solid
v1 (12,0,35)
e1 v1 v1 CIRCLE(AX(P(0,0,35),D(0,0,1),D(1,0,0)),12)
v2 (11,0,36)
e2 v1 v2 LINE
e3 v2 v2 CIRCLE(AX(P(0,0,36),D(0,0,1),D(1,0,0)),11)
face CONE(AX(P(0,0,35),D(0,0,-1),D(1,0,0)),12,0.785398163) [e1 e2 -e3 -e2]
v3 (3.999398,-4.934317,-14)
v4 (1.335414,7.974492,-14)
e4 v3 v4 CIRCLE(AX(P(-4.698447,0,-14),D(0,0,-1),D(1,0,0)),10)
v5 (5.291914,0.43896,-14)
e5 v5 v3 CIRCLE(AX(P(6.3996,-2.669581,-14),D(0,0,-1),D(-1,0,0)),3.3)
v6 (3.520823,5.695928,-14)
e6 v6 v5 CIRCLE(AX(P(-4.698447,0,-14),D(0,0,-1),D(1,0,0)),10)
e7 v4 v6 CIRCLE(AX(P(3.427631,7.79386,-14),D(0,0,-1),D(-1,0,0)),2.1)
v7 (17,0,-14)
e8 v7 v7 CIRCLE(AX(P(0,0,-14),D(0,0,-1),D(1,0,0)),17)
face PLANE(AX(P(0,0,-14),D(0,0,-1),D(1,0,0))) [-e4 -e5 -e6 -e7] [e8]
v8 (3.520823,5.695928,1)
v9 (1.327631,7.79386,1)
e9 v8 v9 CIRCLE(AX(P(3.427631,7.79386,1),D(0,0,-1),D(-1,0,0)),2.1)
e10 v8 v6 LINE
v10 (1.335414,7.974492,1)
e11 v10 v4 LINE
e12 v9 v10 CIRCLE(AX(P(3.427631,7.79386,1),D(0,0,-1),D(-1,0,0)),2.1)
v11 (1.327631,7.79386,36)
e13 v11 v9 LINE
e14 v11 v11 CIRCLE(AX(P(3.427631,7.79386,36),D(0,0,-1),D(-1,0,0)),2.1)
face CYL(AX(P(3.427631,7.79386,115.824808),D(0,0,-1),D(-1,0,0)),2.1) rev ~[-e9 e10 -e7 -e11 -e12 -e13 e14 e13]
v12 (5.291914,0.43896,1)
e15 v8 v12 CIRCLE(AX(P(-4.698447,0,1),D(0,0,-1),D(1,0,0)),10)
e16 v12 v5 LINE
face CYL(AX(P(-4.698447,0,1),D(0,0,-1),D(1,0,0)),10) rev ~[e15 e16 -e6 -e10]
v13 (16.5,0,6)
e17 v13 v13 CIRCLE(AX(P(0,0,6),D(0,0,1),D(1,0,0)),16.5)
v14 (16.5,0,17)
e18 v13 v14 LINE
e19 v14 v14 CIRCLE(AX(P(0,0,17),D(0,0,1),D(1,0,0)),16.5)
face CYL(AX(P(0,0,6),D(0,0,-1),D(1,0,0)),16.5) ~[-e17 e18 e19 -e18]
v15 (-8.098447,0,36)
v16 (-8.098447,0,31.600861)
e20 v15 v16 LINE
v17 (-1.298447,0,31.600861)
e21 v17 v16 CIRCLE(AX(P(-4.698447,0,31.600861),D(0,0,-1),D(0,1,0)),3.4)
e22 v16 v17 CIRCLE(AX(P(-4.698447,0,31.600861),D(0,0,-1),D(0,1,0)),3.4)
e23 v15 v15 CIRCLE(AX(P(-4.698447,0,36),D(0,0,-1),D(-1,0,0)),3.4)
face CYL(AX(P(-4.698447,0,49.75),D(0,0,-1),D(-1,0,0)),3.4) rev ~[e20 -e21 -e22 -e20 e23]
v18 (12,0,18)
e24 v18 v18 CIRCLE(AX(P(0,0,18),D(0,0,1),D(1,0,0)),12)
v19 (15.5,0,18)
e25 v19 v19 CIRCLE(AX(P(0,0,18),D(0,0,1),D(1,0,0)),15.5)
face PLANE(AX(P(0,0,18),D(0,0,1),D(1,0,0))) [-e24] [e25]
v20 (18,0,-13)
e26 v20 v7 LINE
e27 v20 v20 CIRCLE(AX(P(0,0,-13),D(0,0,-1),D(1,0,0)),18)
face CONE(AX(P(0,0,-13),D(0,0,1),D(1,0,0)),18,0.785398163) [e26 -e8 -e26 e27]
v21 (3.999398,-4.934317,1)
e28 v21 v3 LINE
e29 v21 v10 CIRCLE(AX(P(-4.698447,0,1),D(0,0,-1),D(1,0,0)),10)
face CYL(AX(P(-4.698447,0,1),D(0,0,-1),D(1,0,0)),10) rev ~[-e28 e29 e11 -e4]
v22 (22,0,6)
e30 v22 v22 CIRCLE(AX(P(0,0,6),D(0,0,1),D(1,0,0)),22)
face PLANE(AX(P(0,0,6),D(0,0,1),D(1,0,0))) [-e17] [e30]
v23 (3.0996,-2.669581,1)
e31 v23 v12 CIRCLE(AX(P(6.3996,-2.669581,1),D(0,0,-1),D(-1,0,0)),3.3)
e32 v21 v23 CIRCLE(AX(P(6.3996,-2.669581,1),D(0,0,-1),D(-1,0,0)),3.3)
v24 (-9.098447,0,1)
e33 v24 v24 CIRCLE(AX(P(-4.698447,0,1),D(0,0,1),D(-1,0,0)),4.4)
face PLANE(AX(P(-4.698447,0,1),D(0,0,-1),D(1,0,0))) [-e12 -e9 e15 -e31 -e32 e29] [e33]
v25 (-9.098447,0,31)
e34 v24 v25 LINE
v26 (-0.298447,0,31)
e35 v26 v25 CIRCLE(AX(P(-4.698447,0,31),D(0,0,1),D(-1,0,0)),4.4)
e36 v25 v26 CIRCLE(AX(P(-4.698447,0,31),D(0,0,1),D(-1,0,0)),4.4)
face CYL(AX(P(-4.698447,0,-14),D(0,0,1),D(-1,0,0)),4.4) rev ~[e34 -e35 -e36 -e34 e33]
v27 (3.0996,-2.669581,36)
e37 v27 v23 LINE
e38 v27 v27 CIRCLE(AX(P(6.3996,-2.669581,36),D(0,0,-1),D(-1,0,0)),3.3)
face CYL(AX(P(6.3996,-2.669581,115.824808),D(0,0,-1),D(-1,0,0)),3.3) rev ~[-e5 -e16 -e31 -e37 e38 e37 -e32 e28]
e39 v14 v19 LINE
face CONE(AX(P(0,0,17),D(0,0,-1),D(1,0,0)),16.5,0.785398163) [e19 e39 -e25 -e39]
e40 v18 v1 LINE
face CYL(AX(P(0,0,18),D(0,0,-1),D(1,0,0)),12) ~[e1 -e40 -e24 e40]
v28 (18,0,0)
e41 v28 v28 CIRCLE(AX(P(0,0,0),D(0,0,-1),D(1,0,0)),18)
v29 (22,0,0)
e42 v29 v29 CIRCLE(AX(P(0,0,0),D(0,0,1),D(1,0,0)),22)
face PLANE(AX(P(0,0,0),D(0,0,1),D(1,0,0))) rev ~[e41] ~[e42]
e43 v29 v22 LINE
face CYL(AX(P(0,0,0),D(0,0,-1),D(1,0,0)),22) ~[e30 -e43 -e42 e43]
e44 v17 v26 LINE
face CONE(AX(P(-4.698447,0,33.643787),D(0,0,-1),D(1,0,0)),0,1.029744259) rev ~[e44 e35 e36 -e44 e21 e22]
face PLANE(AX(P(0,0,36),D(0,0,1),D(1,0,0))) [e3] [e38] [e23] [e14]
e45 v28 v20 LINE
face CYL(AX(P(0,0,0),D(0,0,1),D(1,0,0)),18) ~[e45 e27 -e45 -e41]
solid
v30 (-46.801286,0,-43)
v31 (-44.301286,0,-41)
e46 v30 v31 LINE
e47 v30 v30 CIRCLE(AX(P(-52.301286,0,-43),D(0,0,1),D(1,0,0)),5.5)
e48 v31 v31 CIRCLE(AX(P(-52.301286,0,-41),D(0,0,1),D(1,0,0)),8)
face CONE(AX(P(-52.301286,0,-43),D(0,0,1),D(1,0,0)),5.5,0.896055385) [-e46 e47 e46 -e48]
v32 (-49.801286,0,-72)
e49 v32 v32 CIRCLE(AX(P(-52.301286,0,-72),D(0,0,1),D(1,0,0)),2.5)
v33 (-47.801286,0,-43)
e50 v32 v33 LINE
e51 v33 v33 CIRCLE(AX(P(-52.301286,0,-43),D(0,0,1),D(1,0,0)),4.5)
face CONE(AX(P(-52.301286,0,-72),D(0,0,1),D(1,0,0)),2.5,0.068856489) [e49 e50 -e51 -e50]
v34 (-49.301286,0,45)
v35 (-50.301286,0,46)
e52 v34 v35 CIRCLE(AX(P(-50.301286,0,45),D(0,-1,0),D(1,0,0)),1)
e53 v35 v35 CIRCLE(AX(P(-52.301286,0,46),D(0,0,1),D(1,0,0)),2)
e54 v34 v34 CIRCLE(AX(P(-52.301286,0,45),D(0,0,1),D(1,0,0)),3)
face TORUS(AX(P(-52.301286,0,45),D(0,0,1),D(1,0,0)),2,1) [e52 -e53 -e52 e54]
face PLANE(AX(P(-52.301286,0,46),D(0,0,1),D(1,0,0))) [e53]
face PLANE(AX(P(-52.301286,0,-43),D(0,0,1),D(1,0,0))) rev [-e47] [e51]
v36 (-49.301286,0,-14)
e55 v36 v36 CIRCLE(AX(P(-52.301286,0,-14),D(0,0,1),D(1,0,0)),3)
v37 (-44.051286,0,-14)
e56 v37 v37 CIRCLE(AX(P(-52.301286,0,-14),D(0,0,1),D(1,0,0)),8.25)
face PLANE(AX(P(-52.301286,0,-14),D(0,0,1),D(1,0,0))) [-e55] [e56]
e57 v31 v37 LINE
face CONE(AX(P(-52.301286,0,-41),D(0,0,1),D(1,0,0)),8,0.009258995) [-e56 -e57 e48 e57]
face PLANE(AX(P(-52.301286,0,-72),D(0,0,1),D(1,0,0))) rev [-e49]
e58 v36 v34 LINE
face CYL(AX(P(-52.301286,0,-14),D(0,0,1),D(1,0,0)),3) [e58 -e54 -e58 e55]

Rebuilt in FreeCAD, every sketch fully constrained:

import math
import FreeCAD as App
import Part
import Sketcher

V = App.Vector
Q = App.Units.Quantity


def edges_at(feature, points):
    """Names of the edges that pass closest to the given points."""
    edges = feature.Shape.Edges
    near = lambda p: min(range(len(edges)), key=lambda i: edges[i].distToShape(Part.Vertex(*p))[0])
    return sorted({f"Edge{near(p) + 1}" for p in points})

doc = App.newDocument("Part")
body = doc.addObject("PartDesign::Body", "Body")

# Sketch on XY plane
sketch1 = body.newObject("Sketcher::SketchObject", "Sketch")
sketch1.AttachmentSupport = (doc.getObject("XY_Plane"), [""])
sketch1.MapMode = "FlatFace"
sketch1.addGeometry(Part.Circle(V(0, 0, 0), V(0, 0, 1), 22), False)
sketch1.addConstraint(Sketcher.Constraint("Coincident", 0, 3, -1, 1))
sketch1.addConstraint(Sketcher.Constraint("Diameter", 0, Q("44 mm")))
pad1 = body.newObject("PartDesign::Pad", "Pad")
pad1.Profile = sketch1
pad1.Length = 6

# Sketch on XY plane
sketch2 = body.newObject("Sketcher::SketchObject", "Sketch001")
sketch2.AttachmentSupport = (doc.getObject("XY_Plane"), [""])
sketch2.MapMode = "FlatFace"
sketch2.AttachmentOffset = App.Placement(V(0, 0, 6), App.Rotation())
sketch2.addGeometry(Part.Circle(V(0, 0, 0), V(0, 0, 1), 16), False)
sketch2.addConstraint(Sketcher.Constraint("Coincident", 0, 3, -1, 1))
sketch2.addConstraint(Sketcher.Constraint("Diameter", 0, Q("33 mm")))
pad2 = body.newObject("PartDesign::Pad", "Pad001")
pad2.Profile = sketch2
pad2.Length = 12

# Sketch on XY plane
sketch3 = body.newObject("Sketcher::SketchObject", "Sketch002")
sketch3.AttachmentSupport = (doc.getObject("XY_Plane"), [""])
sketch3.MapMode = "FlatFace"
sketch3.AttachmentOffset = App.Placement(V(0, 0, 18), App.Rotation())
sketch3.addGeometry(Part.Circle(V(0, 0, 0), V(0, 0, 1), 12), False)
sketch3.addConstraint(Sketcher.Constraint("Coincident", 0, 3, -1, 1))
sketch3.addConstraint(Sketcher.Constraint("Diameter", 0, Q("24 mm")))
pad3 = body.newObject("PartDesign::Pad", "Pad002")
pad3.Profile = sketch3
pad3.Length = 18

# Sketch on XY plane
sketch4 = body.newObject("Sketcher::SketchObject", "Sketch003")
sketch4.AttachmentSupport = (doc.getObject("XY_Plane"), [""])
sketch4.MapMode = "FlatFace"
sketch4.addGeometry(Part.Circle(V(0, 0, 0), V(0, 0, 1), 18), False)
sketch4.addConstraint(Sketcher.Constraint("Coincident", 0, 3, -1, 1))
sketch4.addConstraint(Sketcher.Constraint("Diameter", 0, Q("36 mm")))
pad4 = body.newObject("PartDesign::Pad", "Pad003")
pad4.Profile = sketch4
pad4.Length = 14
pad4.Reversed = True
doc.recompute()

chamfer = body.newObject("PartDesign::Chamfer", "Chamfer")
chamfer.Base = (pad4, edges_at(pad4, [(-18, 0, -14), (-16.5, 0, 18)]))
chamfer.Size = 1
doc.recompute()

chamfer2 = body.newObject("PartDesign::Chamfer", "Chamfer001")
chamfer2.Base = (chamfer, edges_at(chamfer, [(-12, 0, 36)]))
chamfer2.Size = 1

# Sketch on XY plane
sketch5 = body.newObject("Sketcher::SketchObject", "Sketch004")
sketch5.AttachmentSupport = (doc.getObject("XY_Plane"), [""])
sketch5.MapMode = "FlatFace"
sketch5.AttachmentOffset = App.Placement(V(0, 0, 36), App.Rotation())
sketch5.addGeometry(Part.Circle(V(-4.7, 0, 0), V(0, 0, 1), 3.4), False)
sketch5.addConstraint(Sketcher.Constraint("PointOnObject", 0, 3, -1))
sketch5.addConstraint(Sketcher.Constraint("Diameter", 0, Q("6.8 mm")))
sketch5.addConstraint(Sketcher.Constraint("DistanceX", 0, 3, -1, 1, Q("4.698447 mm")))
doc.recompute()
hole = body.newObject("PartDesign::Hole", "Hole")
hole.Profile = sketch5
hole.ThreadType = "None"
hole.Diameter = 6.8
hole.DepthType = "Dimension"
hole.Depth = 13.75
hole.DrillPoint = "Angled"
hole.DrillPointAngle = 118

# Sketch on XY plane
sketch6 = body.newObject("Sketcher::SketchObject", "Sketch005")
sketch6.AttachmentSupport = (doc.getObject("XY_Plane"), [""])
sketch6.MapMode = "FlatFace"
sketch6.AttachmentOffset = App.Placement(V(0, 0, -14), App.Rotation())
sketch6.addGeometry(Part.Circle(V(-4.7, 0, 0), V(0, 0, 1), 4.4), False)
sketch6.addConstraint(Sketcher.Constraint("PointOnObject", 0, 3, -1))
sketch6.addConstraint(Sketcher.Constraint("Diameter", 0, Q("8.8 mm")))
sketch6.addConstraint(Sketcher.Constraint("DistanceX", 0, 3, -1, 1, Q("4.698447 mm")))
doc.recompute()
hole2 = body.newObject("PartDesign::Hole", "Hole001")
hole2.Profile = sketch6
hole2.ThreadType = "None"
hole2.Diameter = 8.8
hole2.DepthType = "Dimension"
hole2.Depth = 45
hole2.DrillPoint = "Angled"
hole2.DrillPointAngle = 118
hole2.HoleCutType = "Counterbore"
hole2.HoleCutDiameter = 20
hole2.HoleCutDepth = 15
hole2.Reversed = True

# Sketch on XY plane
sketch7 = body.newObject("Sketcher::SketchObject", "Sketch006")
sketch7.AttachmentSupport = (doc.getObject("XY_Plane"), [""])
sketch7.MapMode = "FlatFace"
sketch7.AttachmentOffset = App.Placement(V(0, 0, 36), App.Rotation())
sketch7.addGeometry(Part.Circle(V(6.4, -2.7, 0), V(0, 0, 1), 3.3), False)
sketch7.addConstraint(Sketcher.Constraint("Diameter", 0, Q("6.6 mm")))
sketch7.addConstraint(Sketcher.Constraint("DistanceX", -1, 1, 0, 3, Q("6.3996 mm")))
sketch7.addConstraint(Sketcher.Constraint("DistanceY", 0, 3, -1, 1, Q("2.669581 mm")))
doc.recompute()
hole3 = body.newObject("PartDesign::Hole", "Hole002")
hole3.Profile = sketch7
hole3.ThreadType = "None"
hole3.Diameter = 6.6
hole3.DepthType = "ThroughAll"

# Sketch on XY plane
sketch8 = body.newObject("Sketcher::SketchObject", "Sketch007")
sketch8.AttachmentSupport = (doc.getObject("XY_Plane"), [""])
sketch8.MapMode = "FlatFace"
sketch8.AttachmentOffset = App.Placement(V(0, 0, 36), App.Rotation())
sketch8.addGeometry(Part.Circle(V(3.4, 7.8, 0), V(0, 0, 1), 2.1), False)
sketch8.addConstraint(Sketcher.Constraint("Diameter", 0, Q("4.2 mm")))
sketch8.addConstraint(Sketcher.Constraint("DistanceX", -1, 1, 0, 3, Q("3.427631 mm")))
sketch8.addConstraint(Sketcher.Constraint("DistanceY", -1, 1, 0, 3, Q("7.79386 mm")))
doc.recompute()
hole4 = body.newObject("PartDesign::Hole", "Hole003")
hole4.Profile = sketch8
hole4.ThreadType = "None"
hole4.Diameter = 4.2
hole4.DepthType = "ThroughAll"
body2 = doc.addObject("PartDesign::Body", "Body001")

# Sketch on XZ plane
sketch9 = body2.newObject("Sketcher::SketchObject", "Sketch008")
sketch9.AttachmentSupport = (doc.getObject("XZ_Plane001"), [""])
sketch9.MapMode = "FlatFace"
sketch9.addGeometry(Part.LineSegment(V(-44.3, -41, 0), V(-44.1, -14, 0)), False)
sketch9.addGeometry(Part.LineSegment(V(-44.1, -14, 0), V(-49.3, -14, 0)), False)
sketch9.addGeometry(Part.LineSegment(V(-49.3, -14, 0), V(-49.3, 45, 0)), False)
sketch9.addGeometry(Part.ArcOfCircle(Part.Circle(V(-50.3, 45, 0), V(0, 0, 1), 1), math.radians(0), math.radians(90)), False)
sketch9.addGeometry(Part.LineSegment(V(-50.3, 46, 0), V(-52.3, 46, 0)), False)
sketch9.addGeometry(Part.LineSegment(V(-52.3, 46, 0), V(-52.3, -72, 0)), False)
sketch9.addGeometry(Part.LineSegment(V(-52.3, -72, 0), V(-49.8, -72, 0)), False)
sketch9.addGeometry(Part.LineSegment(V(-49.8, -72, 0), V(-47.8, -43, 0)), False)
sketch9.addGeometry(Part.LineSegment(V(-47.8, -43, 0), V(-46.8, -43, 0)), False)
sketch9.addGeometry(Part.LineSegment(V(-46.8, -43, 0), V(-44.3, -41, 0)), False)
sketch9.addGeometry(Part.LineSegment(V(-52.3, -72, 0), V(-52.3, 46, 0)), True)  # axis
sketch9.addConstraint(Sketcher.Constraint("Coincident", 0, 2, 1, 1))
sketch9.addConstraint(Sketcher.Constraint("Coincident", 1, 2, 2, 1))
sketch9.addConstraint(Sketcher.Constraint("Tangent", 2, 2, 3, 1))
sketch9.addConstraint(Sketcher.Constraint("Tangent", 3, 2, 4, 1))
sketch9.addConstraint(Sketcher.Constraint("Coincident", 4, 2, 5, 1))
sketch9.addConstraint(Sketcher.Constraint("Coincident", 5, 2, 6, 1))
sketch9.addConstraint(Sketcher.Constraint("Coincident", 6, 2, 7, 1))
sketch9.addConstraint(Sketcher.Constraint("Coincident", 7, 2, 8, 1))
sketch9.addConstraint(Sketcher.Constraint("Coincident", 8, 2, 9, 1))
sketch9.addConstraint(Sketcher.Constraint("Coincident", 9, 2, 0, 1))
sketch9.addConstraint(Sketcher.Constraint("Horizontal", 1))
sketch9.addConstraint(Sketcher.Constraint("Vertical", 2))
sketch9.addConstraint(Sketcher.Constraint("Horizontal", 4))
sketch9.addConstraint(Sketcher.Constraint("Vertical", 5))
sketch9.addConstraint(Sketcher.Constraint("Horizontal", 6))
sketch9.addConstraint(Sketcher.Constraint("Horizontal", 8))
sketch9.addConstraint(Sketcher.Constraint("Vertical", 10))
sketch9.addConstraint(Sketcher.Constraint("Coincident", 10, 1, 5, 2))
sketch9.addConstraint(Sketcher.Constraint("Horizontal", 3, 2, 10, 2))
sketch9.addConstraint(Sketcher.Constraint("Radius", 3, Q("1 mm")))
sketch9.addConstraint(Sketcher.Constraint("DistanceX", 4, 2, 4, 1, Q("2 mm")))
sketch9.addConstraint(Sketcher.Constraint("DistanceX", 8, 1, 8, 2, Q("1 mm")))
sketch9.addConstraint(Sketcher.Constraint("DistanceY", 2, 1, 2, 2, Q("59 mm")))
sketch9.addConstraint(Sketcher.Constraint("DistanceY", 5, 2, 5, 1, Q("118 mm")))
sketch9.addConstraint(Sketcher.Constraint("DistanceX", 6, 1, 6, 2, Q("2.5 mm")))
sketch9.addConstraint(Sketcher.Constraint("DistanceY", -1, 1, 3, 3, Q("45 mm")))
sketch9.addConstraint(Sketcher.Constraint("DistanceY", 7, 2, -1, 1, Q("43 mm")))
sketch9.addConstraint(Sketcher.Constraint("DistanceY", 9, 2, -1, 1, Q("41 mm")))
sketch9.addConstraint(Sketcher.Constraint("DistanceX", 6, 2, 7, 2, Q("2 mm")))
sketch9.addConstraint(Sketcher.Constraint("DistanceX", 1, 2, 9, 2, Q("5 mm")))
sketch9.addConstraint(Sketcher.Constraint("DistanceX", 1, 2, 1, 1, Q("5.25 mm")))
sketch9.addConstraint(Sketcher.Constraint("DistanceX", 3, 3, -1, 1, Q("50.301286 mm")))
revolution = body2.newObject("PartDesign::Revolution", "Revolution")
revolution.Profile = sketch9
revolution.ReferenceAxis = (sketch9, ["Axis0"])
revolution.Angle = 360

doc.recompute()
